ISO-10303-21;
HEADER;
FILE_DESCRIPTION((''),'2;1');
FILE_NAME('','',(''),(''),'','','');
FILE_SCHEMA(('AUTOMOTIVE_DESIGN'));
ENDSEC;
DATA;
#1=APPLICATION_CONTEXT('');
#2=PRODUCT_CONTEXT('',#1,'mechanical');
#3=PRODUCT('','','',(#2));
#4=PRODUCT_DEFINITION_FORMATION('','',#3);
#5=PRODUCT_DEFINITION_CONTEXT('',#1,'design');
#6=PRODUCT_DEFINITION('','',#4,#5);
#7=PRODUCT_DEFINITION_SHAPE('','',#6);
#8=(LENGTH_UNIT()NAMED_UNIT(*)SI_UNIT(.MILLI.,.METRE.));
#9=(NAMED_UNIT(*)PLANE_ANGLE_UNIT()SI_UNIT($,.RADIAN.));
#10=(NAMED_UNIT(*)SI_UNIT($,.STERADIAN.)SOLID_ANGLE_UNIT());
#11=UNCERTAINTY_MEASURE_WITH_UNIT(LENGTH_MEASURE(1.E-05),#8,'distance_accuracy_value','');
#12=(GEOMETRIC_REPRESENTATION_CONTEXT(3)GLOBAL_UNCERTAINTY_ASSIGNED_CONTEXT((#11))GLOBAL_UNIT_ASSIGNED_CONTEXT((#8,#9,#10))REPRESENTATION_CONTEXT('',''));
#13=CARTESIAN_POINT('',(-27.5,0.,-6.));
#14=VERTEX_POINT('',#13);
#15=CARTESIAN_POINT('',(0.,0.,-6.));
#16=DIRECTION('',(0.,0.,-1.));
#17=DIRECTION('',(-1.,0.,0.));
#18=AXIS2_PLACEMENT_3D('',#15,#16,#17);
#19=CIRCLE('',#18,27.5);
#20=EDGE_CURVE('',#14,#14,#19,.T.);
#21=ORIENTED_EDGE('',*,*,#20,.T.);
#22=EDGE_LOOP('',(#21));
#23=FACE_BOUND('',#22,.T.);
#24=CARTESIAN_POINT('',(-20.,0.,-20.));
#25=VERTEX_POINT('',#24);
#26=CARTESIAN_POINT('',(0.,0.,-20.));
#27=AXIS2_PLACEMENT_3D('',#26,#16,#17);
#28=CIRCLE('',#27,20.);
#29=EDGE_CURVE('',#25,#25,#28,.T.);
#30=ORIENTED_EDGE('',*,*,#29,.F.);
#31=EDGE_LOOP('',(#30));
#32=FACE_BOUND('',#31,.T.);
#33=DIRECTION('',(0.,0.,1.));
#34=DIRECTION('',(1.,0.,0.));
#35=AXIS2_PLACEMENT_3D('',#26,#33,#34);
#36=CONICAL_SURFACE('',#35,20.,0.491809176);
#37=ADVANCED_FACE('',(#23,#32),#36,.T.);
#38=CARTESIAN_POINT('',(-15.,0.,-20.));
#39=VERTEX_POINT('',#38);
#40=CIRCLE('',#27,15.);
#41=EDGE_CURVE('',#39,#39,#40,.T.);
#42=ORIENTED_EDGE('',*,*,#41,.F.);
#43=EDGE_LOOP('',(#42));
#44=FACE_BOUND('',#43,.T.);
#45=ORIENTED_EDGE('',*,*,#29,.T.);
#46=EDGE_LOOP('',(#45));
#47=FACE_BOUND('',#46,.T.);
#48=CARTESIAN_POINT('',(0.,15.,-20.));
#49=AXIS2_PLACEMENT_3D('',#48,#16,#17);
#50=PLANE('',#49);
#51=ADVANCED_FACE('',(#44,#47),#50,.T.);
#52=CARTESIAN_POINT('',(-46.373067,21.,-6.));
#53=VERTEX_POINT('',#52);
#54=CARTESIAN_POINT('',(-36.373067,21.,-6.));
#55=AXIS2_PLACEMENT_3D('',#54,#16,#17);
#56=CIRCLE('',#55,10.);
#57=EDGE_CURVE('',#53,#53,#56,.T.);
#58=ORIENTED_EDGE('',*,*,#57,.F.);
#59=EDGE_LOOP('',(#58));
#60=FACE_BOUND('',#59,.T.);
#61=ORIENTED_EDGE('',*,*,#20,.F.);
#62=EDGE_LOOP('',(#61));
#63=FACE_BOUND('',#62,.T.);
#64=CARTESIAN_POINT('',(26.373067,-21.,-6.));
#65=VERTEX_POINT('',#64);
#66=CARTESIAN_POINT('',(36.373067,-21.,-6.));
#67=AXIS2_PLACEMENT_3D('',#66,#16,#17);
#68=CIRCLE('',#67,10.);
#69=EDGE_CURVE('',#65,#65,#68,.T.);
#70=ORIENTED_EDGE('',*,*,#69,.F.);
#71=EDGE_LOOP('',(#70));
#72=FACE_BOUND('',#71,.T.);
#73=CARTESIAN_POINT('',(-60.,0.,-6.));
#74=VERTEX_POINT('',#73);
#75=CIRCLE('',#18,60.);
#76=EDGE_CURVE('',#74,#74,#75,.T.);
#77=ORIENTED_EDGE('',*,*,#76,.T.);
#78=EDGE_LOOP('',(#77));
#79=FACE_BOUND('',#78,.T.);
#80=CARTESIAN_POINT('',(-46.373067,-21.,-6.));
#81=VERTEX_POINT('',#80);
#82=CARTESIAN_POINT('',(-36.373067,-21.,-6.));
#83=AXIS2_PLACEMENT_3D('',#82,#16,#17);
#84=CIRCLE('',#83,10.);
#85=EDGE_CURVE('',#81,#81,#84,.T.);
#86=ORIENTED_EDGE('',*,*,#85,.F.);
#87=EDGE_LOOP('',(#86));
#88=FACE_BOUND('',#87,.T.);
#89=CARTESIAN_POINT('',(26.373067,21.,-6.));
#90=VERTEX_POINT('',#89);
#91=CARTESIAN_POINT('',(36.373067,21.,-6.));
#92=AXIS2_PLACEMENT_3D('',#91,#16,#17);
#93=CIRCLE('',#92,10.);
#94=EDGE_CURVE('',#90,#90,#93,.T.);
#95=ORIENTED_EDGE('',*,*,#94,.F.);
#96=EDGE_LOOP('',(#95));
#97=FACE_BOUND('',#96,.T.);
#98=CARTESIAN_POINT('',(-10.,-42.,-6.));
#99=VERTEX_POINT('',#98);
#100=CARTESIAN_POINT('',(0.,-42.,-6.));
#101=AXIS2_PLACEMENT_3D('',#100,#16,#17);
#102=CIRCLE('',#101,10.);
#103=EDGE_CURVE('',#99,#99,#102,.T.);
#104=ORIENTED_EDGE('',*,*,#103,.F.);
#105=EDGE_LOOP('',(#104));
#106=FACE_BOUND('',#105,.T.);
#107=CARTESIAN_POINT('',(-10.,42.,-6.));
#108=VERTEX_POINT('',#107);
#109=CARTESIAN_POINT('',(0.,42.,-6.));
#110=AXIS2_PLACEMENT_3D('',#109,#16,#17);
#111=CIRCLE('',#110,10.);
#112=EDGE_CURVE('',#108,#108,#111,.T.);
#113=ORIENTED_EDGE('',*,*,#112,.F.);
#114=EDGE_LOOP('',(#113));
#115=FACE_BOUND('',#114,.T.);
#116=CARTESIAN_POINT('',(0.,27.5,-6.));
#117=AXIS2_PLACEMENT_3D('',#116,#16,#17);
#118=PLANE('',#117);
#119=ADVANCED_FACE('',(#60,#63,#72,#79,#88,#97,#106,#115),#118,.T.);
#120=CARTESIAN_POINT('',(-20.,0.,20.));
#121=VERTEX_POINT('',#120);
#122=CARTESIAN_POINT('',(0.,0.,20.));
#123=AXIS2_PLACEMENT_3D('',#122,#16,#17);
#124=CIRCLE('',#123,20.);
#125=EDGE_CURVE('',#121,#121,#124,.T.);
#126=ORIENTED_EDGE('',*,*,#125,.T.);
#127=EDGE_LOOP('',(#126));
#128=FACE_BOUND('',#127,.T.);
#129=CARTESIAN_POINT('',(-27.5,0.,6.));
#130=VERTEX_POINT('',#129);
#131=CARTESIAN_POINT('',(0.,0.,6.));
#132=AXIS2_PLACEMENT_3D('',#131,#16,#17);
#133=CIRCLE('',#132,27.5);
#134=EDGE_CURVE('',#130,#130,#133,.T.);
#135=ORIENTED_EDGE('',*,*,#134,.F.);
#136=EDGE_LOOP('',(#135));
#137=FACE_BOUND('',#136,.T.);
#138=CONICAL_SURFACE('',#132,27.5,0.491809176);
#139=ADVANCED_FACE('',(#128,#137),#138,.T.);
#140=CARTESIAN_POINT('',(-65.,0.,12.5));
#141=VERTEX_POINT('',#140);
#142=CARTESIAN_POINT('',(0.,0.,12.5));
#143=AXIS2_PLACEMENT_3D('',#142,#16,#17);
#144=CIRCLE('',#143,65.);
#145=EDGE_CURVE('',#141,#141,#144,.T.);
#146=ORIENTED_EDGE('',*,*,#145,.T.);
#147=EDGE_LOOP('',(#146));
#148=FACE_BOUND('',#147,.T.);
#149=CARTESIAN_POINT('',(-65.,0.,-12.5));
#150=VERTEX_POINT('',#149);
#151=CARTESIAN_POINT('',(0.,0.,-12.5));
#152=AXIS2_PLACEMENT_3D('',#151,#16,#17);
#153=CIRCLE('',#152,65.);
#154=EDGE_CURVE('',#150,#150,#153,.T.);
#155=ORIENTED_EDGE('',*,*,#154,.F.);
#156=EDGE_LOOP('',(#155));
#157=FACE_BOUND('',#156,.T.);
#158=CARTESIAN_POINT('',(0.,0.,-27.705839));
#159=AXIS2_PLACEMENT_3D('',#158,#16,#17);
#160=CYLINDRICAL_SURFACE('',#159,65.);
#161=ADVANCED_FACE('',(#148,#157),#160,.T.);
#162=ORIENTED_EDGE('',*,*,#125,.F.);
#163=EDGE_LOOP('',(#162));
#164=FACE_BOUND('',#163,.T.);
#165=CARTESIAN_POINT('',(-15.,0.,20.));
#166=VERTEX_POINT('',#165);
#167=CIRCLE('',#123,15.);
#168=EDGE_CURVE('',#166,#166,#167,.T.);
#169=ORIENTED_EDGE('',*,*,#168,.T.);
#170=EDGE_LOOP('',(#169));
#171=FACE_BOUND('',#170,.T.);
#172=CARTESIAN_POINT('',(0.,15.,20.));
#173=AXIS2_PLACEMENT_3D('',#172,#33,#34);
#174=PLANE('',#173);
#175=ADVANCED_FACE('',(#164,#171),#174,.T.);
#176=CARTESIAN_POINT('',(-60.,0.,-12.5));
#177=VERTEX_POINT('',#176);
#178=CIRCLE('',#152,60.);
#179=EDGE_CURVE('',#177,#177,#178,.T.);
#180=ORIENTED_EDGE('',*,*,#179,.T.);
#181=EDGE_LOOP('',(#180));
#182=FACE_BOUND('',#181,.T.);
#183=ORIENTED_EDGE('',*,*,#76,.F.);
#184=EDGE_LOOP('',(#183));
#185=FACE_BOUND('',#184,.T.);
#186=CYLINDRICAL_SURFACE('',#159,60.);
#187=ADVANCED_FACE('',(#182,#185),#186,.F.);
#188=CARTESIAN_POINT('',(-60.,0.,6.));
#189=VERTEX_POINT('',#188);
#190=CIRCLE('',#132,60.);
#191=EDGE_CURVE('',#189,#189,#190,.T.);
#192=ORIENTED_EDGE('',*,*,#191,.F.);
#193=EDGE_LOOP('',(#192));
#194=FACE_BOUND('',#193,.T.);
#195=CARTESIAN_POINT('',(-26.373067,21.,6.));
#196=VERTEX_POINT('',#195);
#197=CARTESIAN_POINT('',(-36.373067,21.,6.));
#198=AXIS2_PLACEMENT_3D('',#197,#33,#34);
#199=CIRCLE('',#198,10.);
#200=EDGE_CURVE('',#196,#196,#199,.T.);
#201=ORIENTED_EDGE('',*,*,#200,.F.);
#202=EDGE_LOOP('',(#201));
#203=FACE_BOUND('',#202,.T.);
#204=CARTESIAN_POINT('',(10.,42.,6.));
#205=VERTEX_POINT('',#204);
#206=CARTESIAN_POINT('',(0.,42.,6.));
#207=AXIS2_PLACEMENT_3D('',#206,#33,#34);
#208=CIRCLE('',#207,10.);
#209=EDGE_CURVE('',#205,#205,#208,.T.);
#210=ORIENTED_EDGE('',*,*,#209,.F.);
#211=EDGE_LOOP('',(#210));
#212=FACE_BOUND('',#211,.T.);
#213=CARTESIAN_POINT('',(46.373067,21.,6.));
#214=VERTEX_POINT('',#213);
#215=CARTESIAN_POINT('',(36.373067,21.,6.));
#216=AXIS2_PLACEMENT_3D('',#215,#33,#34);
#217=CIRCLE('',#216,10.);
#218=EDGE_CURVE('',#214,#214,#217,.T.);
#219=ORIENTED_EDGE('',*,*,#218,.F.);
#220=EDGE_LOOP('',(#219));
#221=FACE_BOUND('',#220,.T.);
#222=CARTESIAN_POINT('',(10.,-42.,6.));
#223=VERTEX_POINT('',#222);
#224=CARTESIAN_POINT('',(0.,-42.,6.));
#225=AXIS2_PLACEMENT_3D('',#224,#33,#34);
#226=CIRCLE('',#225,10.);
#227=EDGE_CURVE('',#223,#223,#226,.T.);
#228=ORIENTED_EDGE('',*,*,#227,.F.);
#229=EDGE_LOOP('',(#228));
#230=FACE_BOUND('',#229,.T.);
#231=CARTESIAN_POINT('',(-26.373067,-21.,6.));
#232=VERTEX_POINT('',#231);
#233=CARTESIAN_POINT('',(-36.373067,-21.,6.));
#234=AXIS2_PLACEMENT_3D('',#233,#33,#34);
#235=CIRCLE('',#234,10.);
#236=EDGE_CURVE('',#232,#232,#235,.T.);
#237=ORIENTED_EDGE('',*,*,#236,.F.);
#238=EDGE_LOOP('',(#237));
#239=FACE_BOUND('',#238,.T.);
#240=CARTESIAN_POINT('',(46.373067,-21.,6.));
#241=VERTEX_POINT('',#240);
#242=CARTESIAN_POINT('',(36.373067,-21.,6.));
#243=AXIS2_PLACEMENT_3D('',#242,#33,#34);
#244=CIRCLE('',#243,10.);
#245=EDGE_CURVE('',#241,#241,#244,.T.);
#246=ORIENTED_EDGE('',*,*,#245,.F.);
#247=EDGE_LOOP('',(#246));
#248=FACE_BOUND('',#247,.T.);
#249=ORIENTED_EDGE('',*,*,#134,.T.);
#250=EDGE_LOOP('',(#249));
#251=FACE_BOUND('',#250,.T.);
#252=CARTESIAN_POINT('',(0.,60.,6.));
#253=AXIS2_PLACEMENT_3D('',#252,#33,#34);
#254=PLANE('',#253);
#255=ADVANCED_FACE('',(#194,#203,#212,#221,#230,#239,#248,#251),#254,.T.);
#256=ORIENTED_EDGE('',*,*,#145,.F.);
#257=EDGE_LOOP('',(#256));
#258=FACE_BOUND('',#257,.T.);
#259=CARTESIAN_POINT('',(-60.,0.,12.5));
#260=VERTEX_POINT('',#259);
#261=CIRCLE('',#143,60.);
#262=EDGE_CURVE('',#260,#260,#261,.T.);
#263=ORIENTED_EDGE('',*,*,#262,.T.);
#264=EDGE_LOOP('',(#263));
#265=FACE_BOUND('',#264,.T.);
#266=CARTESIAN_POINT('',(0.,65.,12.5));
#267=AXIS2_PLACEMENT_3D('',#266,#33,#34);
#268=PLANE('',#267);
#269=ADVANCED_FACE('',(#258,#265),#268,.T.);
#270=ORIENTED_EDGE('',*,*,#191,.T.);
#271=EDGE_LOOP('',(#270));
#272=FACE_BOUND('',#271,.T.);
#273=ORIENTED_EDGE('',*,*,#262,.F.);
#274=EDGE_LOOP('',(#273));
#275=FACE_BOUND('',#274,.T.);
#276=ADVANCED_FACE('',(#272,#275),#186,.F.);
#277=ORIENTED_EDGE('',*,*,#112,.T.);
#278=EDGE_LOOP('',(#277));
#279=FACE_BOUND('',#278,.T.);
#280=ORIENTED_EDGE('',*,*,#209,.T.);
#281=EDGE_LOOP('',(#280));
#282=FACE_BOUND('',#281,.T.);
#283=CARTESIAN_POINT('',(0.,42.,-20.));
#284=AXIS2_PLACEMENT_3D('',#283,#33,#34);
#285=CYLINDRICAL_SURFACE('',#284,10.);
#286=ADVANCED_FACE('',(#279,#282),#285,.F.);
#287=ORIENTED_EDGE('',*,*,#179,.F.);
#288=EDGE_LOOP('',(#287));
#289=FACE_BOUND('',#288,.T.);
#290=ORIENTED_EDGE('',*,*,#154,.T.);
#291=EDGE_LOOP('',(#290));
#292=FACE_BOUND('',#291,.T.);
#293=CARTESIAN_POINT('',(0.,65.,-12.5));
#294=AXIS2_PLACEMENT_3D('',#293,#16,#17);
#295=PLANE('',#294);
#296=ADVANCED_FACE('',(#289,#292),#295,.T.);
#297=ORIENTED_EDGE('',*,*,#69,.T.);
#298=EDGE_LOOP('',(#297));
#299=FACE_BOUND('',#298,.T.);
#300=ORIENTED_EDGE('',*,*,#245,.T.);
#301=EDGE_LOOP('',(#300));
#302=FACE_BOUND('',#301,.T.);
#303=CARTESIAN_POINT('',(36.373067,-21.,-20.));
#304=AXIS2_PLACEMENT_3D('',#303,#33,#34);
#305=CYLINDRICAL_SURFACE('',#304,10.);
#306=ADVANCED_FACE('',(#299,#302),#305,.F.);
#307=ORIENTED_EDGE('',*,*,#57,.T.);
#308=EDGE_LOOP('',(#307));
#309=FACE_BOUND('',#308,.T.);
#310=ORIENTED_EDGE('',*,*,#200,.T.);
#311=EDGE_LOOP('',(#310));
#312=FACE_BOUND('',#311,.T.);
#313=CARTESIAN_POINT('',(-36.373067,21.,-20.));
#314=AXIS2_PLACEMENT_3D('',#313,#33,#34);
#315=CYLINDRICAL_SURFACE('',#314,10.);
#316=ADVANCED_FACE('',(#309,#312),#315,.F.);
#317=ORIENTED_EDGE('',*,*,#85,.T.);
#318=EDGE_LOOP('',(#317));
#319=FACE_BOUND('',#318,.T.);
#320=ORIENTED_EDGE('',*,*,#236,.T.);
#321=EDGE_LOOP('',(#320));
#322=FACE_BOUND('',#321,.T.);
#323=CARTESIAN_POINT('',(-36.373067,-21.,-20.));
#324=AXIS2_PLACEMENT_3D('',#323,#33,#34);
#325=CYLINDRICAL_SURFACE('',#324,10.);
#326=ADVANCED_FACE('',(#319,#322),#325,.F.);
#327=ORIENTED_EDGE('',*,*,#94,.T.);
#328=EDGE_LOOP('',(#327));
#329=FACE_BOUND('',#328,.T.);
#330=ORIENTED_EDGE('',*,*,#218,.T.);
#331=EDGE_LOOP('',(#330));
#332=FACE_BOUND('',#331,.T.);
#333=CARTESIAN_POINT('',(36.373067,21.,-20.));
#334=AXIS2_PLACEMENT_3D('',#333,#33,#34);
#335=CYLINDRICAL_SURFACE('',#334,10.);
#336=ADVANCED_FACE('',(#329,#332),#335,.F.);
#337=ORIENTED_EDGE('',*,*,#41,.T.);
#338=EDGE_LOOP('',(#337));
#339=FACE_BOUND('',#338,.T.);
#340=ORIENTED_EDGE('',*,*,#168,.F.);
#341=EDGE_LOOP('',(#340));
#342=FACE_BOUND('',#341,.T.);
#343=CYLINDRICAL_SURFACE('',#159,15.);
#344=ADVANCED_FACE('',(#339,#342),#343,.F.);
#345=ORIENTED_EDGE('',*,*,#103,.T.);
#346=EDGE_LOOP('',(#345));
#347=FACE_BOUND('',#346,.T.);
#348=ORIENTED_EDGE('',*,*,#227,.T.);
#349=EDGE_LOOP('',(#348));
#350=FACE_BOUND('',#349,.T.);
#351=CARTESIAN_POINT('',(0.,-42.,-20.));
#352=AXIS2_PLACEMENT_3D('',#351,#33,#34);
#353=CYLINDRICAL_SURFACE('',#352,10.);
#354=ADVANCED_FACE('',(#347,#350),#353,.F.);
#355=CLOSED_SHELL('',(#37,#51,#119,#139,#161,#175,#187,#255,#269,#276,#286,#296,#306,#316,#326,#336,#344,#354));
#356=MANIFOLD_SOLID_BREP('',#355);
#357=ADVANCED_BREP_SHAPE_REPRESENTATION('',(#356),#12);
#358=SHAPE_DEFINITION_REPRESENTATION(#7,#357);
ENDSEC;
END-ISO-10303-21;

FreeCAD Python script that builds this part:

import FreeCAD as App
import Part
import Sketcher
Q = App.Units.Quantity

doc = App.newDocument("Part")
body = doc.addObject("PartDesign::Body", "Body")

sketch1 = body.newObject("Sketcher::SketchObject", "Sketch")
sketch1.AttachmentSupport = (doc.getObject("YZ_Plane"), [""])
sketch1.MapMode = "FlatFace"
sketch1.addGeometry([
    Part.LineSegment(App.Vector(65, -12, 0), App.Vector(65, 12, 0)),
    Part.LineSegment(App.Vector(65, 12, 0), App.Vector(60, 12, 0)),
    Part.LineSegment(App.Vector(60, 12, 0), App.Vector(60, 6, 0)),
    Part.LineSegment(App.Vector(60, 6, 0), App.Vector(28, 6, 0)),
    Part.LineSegment(App.Vector(28, 6, 0), App.Vector(20, 20, 0)),
    Part.LineSegment(App.Vector(20, 20, 0), App.Vector(15, 20, 0)),
    Part.LineSegment(App.Vector(15, 20, 0), App.Vector(15, -20, 0)),
    Part.LineSegment(App.Vector(15, -20, 0), App.Vector(20, -20, 0)),
    Part.LineSegment(App.Vector(20, -20, 0), App.Vector(28, -6, 0)),
    Part.LineSegment(App.Vector(28, -6, 0), App.Vector(60, -6, 0)),
    Part.LineSegment(App.Vector(60, -6, 0), App.Vector(60, -12, 0)),
    Part.LineSegment(App.Vector(60, -12, 0), App.Vector(65, -12, 0)),
], False)
sketch1.addConstraint([
    Sketcher.Constraint("Coincident", 0, 2, 1, 1),
    Sketcher.Constraint("Coincident", 1, 2, 2, 1),
    Sketcher.Constraint("Coincident", 2, 2, 3, 1),
    Sketcher.Constraint("Coincident", 3, 2, 4, 1),
    Sketcher.Constraint("Coincident", 4, 2, 5, 1),
    Sketcher.Constraint("Coincident", 5, 2, 6, 1),
    Sketcher.Constraint("Coincident", 6, 2, 7, 1),
    Sketcher.Constraint("Coincident", 7, 2, 8, 1),
    Sketcher.Constraint("Coincident", 8, 2, 9, 1),
    Sketcher.Constraint("Coincident", 9, 2, 10, 1),
    Sketcher.Constraint("Coincident", 10, 2, 11, 1),
    Sketcher.Constraint("Coincident", 11, 2, 0, 1),
    Sketcher.Constraint("Vertical", 0),
    Sketcher.Constraint("Horizontal", 1),
    Sketcher.Constraint("Vertical", 2),
    Sketcher.Constraint("Horizontal", 3),
    Sketcher.Constraint("Horizontal", 5),
    Sketcher.Constraint("Vertical", 6),
    Sketcher.Constraint("Horizontal", 7),
    Sketcher.Constraint("Horizontal", 9),
    Sketcher.Constraint("Vertical", 10),
    Sketcher.Constraint("Horizontal", 11),
    Sketcher.Constraint("Symmetric", 4, 2, 7, 2, -1),
    Sketcher.Constraint("Symmetric", 3, 2, 8, 2, -1),
    Sketcher.Constraint("Symmetric", 1, 2, 10, 2, -1),
    Sketcher.Constraint("Equal", 1, 5),
    Sketcher.Constraint("DistanceX", 1, 2, 1, 1, Q("5 mm")),
    Sketcher.Constraint("DistanceY", 0, 1, 0, 2, Q("25 mm")),
    Sketcher.Constraint("DistanceY", 6, 2, 6, 1, Q("40 mm")),
    Sketcher.Constraint("DistanceX", 3, 2, 3, 1, Q("32.5 mm")),
    Sketcher.Constraint("DistanceY", 2, 2, 2, 1, Q("6.5 mm")),
    Sketcher.Constraint("DistanceX", -1, 1, 0, 2, Q("65 mm")),
    Sketcher.Constraint("DistanceX", -1, 1, 4, 2, Q("20 mm")),
])
revolution = body.newObject("PartDesign::Revolution", "Revolution")
revolution.Profile = sketch1
revolution.ReferenceAxis = (sketch1, ["V_Axis"])
revolution.Angle = 360

sketch2 = body.newObject("Sketcher::SketchObject", "Sketch001")
sketch2.AttachmentSupport = (doc.getObject("XY_Plane"), [""])
sketch2.MapMode = "FlatFace"
sketch2.AttachmentOffset = App.Placement(App.Vector(0, 0, 6), App.Rotation())
sketch2.addGeometry([
    Part.Circle(App.Vector(0, 42, 0), App.Vector(0, 0, 1), 10),
    Part.Circle(App.Vector(36, 21, 0), App.Vector(0, 0, 1), 10),
    Part.Circle(App.Vector(36, -21, 0), App.Vector(0, 0, 1), 10),
    Part.Circle(App.Vector(0, -42, 0), App.Vector(0, 0, 1), 10),
    Part.Circle(App.Vector(-36, -21, 0), App.Vector(0, 0, 1), 10),
    Part.Circle(App.Vector(-36, 21, 0), App.Vector(0, 0, 1), 10),
], False)
sketch2.addConstraint([
    Sketcher.Constraint("Equal", 0, 1),
    Sketcher.Constraint("Equal", 1, 2),
    Sketcher.Constraint("Equal", 2, 3),
    Sketcher.Constraint("Equal", 3, 4),
    Sketcher.Constraint("Equal", 4, 5),
    Sketcher.Constraint("Symmetric", 0, 3, 3, 3, -1, 1),
    Sketcher.Constraint("Symmetric", 1, 3, 4, 3, -1, 1),
    Sketcher.Constraint("Symmetric", 2, 3, 5, 3, -1, 1),
    Sketcher.Constraint("Symmetric", 2, 3, 4, 3, -2),
    Sketcher.Constraint("PointOnObject", 0, 3, -2),
    Sketcher.Constraint("Diameter", 0, Q("20 mm")),
    Sketcher.Constraint("DistanceY", -1, 1, 0, 3, Q("42 mm")),
    Sketcher.Constraint("DistanceY", -1, 1, 1, 3, Q("21 mm")),
    Sketcher.Constraint("DistanceX", -1, 1, 1, 3, Q("36.373067 mm")),
])
pocket1 = body.newObject("PartDesign::Pocket", "Pocket")
pocket1.Profile = sketch2
pocket1.Type = "ThroughAll"
pocket1.Midplane = True

doc.recompute()
